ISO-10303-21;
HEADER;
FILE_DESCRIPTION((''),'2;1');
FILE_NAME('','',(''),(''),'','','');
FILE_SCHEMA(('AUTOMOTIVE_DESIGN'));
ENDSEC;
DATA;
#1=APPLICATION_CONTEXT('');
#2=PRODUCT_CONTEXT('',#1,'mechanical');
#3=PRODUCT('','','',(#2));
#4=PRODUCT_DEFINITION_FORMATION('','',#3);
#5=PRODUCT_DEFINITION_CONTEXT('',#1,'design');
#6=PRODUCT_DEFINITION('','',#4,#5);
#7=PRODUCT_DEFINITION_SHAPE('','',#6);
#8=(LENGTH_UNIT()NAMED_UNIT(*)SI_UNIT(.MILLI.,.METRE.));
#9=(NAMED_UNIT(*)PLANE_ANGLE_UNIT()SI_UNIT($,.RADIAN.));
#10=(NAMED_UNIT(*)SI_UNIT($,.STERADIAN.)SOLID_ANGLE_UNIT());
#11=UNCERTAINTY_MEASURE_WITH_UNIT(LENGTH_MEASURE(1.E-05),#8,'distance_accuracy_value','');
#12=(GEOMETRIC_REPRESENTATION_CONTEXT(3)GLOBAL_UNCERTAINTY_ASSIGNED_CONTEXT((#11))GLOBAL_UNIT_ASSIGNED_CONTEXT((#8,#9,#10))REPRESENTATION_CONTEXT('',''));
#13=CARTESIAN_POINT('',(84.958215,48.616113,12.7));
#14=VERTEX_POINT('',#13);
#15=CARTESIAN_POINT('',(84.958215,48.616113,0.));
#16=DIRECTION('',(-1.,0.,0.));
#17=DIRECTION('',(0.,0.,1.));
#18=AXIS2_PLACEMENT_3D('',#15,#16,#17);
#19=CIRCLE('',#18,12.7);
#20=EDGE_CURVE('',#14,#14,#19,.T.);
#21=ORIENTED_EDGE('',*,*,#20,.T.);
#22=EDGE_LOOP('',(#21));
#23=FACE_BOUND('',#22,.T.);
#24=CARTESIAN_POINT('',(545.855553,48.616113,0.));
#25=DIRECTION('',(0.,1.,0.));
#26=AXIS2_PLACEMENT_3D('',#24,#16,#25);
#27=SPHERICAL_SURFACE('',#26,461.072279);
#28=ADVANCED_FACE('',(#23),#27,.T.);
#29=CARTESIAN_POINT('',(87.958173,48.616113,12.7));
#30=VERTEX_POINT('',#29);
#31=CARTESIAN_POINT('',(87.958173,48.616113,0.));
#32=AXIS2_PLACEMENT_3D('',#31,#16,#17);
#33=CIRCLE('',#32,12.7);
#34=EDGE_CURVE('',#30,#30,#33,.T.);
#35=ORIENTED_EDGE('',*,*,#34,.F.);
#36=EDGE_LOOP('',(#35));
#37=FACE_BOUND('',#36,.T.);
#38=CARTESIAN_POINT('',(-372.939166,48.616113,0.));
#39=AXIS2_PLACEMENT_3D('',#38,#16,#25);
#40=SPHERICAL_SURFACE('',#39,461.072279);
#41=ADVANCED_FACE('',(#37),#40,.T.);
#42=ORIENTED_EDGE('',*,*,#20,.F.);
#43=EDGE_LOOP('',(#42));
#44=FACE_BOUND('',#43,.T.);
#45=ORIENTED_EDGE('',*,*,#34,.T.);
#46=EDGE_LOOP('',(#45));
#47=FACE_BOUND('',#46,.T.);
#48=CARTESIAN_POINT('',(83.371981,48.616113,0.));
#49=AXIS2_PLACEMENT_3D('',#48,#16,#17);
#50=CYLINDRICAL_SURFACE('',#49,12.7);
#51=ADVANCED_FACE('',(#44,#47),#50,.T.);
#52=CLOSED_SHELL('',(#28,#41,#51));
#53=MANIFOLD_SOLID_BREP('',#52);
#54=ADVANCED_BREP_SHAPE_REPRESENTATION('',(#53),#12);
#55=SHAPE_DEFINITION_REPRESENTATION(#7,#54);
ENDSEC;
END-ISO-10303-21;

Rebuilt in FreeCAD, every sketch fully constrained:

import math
import FreeCAD as App
import Part
import Sketcher
Q = App.Units.Quantity

doc = App.newDocument("Part")
body = doc.addObject("PartDesign::Body", "Body")

# Sketch on XY plane
sketch1 = doc.addObject("Sketcher::SketchObject", "Sketch")
body.addObject(sketch1)
sketch1.AttachmentSupport = (doc.XY_Plane, [""])
sketch1.MapMode = "FlatFace"
sketch1.addGeometry([
    Part.LineSegment(App.Vector(88, 61.3, 0), App.Vector(85, 61.3, 0)),
    Part.ArcOfCircle(Part.Circle(App.Vector(545.9, 48.6, 0), App.Vector(0, 0, 1), 461.1), math.radians(178.42), math.radians(180)),
    Part.LineSegment(App.Vector(84.8, 48.6, 0), App.Vector(88.1, 48.6, 0)),
    Part.ArcOfCircle(Part.Circle(App.Vector(-372.9, 48.6, 0), App.Vector(0, 0, 1), 461.1), math.radians(0), math.radians(1.58)),
], False)
sketch1.addGeometry(Part.LineSegment(App.Vector(-372.9, 48.6, 0), App.Vector(545.9, 48.6, 0)), True)  # axis
sketch1.addConstraint([
    Sketcher.Constraint("Coincident", 0, 2, 1, 1),
    Sketcher.Constraint("Coincident", 1, 2, 2, 1),
    Sketcher.Constraint("Coincident", 2, 2, 3, 1),
    Sketcher.Constraint("Coincident", 3, 2, 0, 1),
    Sketcher.Constraint("Horizontal", 0),
    Sketcher.Constraint("Horizontal", 2),
    Sketcher.Constraint("Horizontal", 4),
    Sketcher.Constraint("Coincident", 4, 1, 3, 3),
    Sketcher.Constraint("Coincident", 4, 2, 1, 3),
    Sketcher.Constraint("Horizontal", 2, 2, 4, 1),
    Sketcher.Constraint("DistanceY", 3, 3, 0, 2, Q("12.7 mm")),
    Sketcher.Constraint("Radius", 1, Q("461.072271 mm")),
    Sketcher.Constraint("Radius", 3, Q("461.072282 mm")),
    Sketcher.Constraint("DistanceX", 2, 1, 2, 2, Q("3.349839 mm")),
    Sketcher.Constraint("DistanceX", 3, 3, -1, 1, Q("372.939169 mm")),
    Sketcher.Constraint("DistanceY", -1, 1, 1, 3, Q("48.616113 mm")),
])
revolution = doc.addObject("PartDesign::Revolution", "Revolution")
body.addObject(revolution)
revolution.Profile = sketch1
revolution.ReferenceAxis = (sketch1, ["Axis0"])
revolution.Angle = 360

doc.recompute()
